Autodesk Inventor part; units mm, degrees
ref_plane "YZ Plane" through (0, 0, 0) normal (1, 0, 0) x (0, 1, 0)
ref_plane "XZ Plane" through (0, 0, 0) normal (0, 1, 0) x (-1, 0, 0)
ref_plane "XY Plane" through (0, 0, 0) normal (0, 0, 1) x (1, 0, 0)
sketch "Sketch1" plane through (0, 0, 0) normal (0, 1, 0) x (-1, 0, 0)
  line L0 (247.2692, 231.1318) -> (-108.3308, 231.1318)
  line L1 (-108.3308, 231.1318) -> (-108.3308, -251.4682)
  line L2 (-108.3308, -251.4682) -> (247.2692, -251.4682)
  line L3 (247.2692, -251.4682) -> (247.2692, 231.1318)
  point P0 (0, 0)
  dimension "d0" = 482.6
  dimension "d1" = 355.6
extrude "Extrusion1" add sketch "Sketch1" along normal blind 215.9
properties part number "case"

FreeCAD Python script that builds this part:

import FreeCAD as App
import Part
import Sketcher

V = App.Vector
Q = App.Units.Quantity

doc = App.newDocument("Part")
body = doc.addObject("PartDesign::Body", "Body")

sketch1 = body.newObject("Sketcher::SketchObject", "Sketch")
sketch1.AttachmentSupport = (doc.getObject("XZ_Plane"), [""])
sketch1.MapMode = "FlatFace"
sketch1.addGeometry([
    Part.LineSegment(V(-247, -251, 0), V(-247, 231, 0)),
    Part.LineSegment(V(-247, 231, 0), V(108, 231, 0)),
    Part.LineSegment(V(108, 231, 0), V(108, -251, 0)),
    Part.LineSegment(V(108, -251, 0), V(-247, -251, 0)),
], False)
sketch1.addConstraint([
    Sketcher.Constraint("Coincident", 0, 2, 1, 1),
    Sketcher.Constraint("Coincident", 1, 2, 2, 1),
    Sketcher.Constraint("Coincident", 2, 2, 3, 1),
    Sketcher.Constraint("Coincident", 3, 2, 0, 1),
    Sketcher.Constraint("Vertical", 0),
    Sketcher.Constraint("Horizontal", 1),
    Sketcher.Constraint("Vertical", 2),
    Sketcher.Constraint("Horizontal", 3),
    Sketcher.Constraint("DistanceX", 1, 1, 1, 2, Q("14 in")),
    Sketcher.Constraint("DistanceY", 0, 1, 0, 2, Q("19 in")),
    Sketcher.Constraint("DistanceX", 0, 2, -1, 1, Q("9.735 in")),
    Sketcher.Constraint("DistanceY", -1, 1, 0, 2, 231.1318),
])
pad1 = body.newObject("PartDesign::Pad", "Pad")
pad1.Profile = sketch1
pad1.Length = Q("8.5 in")
pad1.Reversed = True

doc.recompute()
